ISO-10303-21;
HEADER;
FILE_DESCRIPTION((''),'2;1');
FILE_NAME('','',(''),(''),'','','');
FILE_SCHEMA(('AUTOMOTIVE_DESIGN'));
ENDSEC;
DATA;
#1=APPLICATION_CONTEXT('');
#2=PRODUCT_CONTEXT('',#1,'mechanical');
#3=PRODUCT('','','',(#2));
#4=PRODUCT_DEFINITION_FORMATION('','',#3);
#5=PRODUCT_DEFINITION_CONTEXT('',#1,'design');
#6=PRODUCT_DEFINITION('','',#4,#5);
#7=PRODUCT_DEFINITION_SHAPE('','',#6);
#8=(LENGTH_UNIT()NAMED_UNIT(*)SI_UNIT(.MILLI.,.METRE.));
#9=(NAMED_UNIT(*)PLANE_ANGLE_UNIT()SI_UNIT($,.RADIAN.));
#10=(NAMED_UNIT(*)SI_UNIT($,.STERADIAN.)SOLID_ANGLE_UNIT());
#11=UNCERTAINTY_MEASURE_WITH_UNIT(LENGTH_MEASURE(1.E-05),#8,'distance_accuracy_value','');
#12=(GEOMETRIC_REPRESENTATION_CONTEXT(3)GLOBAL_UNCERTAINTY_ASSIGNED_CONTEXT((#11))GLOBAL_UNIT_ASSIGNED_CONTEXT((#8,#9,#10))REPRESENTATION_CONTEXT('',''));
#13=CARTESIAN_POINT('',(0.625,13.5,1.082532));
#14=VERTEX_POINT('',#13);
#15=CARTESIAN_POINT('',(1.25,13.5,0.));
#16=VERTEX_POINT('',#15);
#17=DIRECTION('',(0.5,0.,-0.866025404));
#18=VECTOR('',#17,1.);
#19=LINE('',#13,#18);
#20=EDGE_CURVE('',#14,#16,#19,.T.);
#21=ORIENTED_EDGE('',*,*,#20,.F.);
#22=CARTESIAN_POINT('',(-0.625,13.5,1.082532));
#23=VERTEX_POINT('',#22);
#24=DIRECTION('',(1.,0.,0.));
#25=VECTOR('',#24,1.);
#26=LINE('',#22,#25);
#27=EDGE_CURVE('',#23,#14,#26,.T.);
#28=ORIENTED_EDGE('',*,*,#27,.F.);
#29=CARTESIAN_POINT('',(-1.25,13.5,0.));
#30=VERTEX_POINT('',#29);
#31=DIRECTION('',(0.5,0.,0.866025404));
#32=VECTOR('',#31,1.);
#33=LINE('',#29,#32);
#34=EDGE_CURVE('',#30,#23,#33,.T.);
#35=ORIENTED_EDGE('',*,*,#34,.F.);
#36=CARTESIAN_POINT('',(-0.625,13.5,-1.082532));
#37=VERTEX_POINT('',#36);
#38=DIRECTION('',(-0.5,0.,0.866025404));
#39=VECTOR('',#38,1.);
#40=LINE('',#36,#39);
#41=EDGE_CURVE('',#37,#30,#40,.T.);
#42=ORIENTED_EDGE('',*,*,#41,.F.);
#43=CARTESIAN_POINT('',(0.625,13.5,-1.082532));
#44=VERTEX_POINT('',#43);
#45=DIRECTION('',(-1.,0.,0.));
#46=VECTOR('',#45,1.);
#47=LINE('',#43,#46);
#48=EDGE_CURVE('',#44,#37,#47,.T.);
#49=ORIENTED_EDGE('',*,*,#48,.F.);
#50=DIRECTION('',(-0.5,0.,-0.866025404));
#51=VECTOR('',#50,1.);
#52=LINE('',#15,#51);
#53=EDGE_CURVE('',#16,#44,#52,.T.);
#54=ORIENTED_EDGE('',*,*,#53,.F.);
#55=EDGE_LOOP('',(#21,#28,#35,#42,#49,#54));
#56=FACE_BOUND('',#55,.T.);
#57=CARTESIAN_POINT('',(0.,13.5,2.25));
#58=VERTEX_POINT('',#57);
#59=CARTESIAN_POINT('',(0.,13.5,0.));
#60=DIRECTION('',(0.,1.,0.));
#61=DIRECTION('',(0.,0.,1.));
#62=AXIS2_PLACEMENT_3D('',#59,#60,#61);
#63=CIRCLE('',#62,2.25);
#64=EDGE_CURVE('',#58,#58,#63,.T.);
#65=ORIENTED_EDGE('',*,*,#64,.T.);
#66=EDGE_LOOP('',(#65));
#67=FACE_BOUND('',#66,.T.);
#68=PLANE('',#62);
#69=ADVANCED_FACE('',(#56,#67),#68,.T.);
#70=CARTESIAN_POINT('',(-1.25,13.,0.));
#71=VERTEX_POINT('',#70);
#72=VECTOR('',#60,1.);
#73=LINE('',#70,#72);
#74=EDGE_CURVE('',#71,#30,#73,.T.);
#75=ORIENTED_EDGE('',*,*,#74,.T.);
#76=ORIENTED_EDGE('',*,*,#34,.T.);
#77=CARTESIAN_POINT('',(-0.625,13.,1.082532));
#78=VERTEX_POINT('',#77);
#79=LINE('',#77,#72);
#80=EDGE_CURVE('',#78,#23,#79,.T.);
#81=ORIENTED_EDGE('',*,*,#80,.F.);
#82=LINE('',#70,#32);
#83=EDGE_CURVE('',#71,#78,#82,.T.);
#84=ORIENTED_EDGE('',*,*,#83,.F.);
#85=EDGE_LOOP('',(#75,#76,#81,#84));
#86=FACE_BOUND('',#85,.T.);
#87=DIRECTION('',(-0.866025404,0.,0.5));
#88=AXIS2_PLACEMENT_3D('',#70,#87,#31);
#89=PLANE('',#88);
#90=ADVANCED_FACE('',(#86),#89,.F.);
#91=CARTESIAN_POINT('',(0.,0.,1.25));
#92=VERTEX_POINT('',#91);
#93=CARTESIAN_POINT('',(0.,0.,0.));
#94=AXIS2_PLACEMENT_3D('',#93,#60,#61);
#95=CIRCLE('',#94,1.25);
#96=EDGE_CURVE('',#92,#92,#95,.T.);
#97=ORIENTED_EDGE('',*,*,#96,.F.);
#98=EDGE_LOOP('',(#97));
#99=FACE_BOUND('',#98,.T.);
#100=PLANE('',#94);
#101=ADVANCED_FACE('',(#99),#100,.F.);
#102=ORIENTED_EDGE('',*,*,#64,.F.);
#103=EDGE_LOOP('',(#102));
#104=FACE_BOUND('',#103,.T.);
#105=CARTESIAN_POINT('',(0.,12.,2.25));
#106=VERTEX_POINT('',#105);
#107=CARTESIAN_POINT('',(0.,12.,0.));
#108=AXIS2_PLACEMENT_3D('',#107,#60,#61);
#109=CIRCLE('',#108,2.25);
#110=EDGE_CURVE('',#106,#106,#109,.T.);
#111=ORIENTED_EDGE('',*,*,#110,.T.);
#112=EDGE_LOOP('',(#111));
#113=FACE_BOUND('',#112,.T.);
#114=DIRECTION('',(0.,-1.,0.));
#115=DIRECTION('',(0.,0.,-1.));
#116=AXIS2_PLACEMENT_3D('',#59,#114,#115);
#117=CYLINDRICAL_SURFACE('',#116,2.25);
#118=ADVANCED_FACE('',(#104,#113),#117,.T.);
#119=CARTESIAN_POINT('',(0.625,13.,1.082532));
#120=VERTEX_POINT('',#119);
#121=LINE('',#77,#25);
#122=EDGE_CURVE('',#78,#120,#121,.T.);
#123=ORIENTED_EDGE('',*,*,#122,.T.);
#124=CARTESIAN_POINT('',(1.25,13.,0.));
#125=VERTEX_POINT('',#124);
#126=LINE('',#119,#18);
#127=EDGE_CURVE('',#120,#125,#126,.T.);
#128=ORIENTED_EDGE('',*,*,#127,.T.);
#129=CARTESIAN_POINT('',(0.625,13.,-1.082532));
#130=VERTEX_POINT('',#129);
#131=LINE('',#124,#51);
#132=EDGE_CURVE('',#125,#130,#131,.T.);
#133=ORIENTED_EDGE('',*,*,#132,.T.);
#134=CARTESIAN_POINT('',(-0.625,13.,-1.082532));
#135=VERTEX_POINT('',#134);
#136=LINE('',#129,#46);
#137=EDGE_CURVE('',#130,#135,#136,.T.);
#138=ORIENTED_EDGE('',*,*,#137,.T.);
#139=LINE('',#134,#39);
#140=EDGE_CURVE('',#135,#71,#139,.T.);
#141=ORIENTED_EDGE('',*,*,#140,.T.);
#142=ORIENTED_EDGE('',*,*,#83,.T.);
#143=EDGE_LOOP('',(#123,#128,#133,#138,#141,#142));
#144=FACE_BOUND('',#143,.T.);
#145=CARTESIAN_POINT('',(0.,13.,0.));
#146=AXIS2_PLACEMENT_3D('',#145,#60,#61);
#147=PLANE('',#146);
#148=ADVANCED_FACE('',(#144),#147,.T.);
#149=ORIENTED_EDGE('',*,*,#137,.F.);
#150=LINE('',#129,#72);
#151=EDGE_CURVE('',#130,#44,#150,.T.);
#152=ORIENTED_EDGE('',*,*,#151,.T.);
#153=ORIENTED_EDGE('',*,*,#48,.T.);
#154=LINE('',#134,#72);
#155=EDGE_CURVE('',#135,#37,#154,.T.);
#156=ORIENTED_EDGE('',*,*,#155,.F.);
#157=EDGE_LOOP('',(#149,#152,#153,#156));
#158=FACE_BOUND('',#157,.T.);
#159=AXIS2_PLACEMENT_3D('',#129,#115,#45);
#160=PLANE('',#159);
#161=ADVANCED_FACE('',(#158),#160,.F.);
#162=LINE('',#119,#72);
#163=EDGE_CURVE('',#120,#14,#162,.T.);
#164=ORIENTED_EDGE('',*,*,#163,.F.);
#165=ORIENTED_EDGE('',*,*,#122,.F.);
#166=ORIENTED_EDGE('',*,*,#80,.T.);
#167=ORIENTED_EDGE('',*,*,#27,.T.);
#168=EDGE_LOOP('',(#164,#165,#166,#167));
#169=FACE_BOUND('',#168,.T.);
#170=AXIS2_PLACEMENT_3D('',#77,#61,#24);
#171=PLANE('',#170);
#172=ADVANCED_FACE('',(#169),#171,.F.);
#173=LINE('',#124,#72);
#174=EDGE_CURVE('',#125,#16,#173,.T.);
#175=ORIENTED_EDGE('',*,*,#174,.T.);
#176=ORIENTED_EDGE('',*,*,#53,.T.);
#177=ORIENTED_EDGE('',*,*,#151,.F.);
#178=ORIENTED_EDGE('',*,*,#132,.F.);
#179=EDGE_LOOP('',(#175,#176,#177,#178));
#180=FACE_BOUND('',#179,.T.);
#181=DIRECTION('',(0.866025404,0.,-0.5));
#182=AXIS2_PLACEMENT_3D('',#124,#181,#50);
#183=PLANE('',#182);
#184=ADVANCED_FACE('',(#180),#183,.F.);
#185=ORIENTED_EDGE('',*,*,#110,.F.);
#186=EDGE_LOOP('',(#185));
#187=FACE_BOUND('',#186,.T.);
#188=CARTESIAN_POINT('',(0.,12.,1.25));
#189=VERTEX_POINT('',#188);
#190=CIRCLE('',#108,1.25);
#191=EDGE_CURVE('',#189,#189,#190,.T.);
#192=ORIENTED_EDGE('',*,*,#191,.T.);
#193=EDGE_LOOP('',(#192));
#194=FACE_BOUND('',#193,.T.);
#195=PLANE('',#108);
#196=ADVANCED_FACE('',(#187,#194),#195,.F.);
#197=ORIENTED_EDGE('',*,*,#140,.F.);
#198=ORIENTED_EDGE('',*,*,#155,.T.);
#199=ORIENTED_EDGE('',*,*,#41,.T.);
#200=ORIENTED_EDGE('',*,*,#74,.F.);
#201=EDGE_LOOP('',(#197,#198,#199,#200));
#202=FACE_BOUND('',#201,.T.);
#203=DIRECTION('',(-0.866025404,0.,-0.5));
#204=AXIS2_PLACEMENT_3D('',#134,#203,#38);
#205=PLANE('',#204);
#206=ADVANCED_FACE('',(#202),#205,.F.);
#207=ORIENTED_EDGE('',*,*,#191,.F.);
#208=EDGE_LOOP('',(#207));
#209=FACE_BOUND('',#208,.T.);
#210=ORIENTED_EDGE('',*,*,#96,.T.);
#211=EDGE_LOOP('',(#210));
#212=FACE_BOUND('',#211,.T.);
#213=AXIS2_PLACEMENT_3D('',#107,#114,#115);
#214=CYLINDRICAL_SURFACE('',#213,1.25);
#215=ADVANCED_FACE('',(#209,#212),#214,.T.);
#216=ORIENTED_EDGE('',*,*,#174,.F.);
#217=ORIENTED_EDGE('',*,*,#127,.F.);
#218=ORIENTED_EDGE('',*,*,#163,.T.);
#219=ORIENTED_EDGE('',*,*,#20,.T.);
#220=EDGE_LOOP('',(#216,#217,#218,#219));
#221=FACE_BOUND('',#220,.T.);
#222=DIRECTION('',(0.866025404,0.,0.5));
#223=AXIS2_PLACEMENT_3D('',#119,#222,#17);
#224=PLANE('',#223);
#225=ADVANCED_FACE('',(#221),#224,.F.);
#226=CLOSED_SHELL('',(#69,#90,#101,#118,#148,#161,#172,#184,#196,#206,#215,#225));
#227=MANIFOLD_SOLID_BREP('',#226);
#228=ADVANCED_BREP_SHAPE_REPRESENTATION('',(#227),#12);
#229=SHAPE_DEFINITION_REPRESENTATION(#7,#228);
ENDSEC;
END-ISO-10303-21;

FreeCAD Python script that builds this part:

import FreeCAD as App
import Part
import Sketcher

V = App.Vector
Q = App.Units.Quantity


def add_polygon(sketch, points):
    """Adds a closed chain of lines whose ends are joined by coincident constraints."""
    first, n = sketch.GeometryCount, len(points)
    for a, b in zip(points, points[1:] + points[:1]):
        sketch.addGeometry(Part.LineSegment(App.Vector(*a, 0), App.Vector(*b, 0)), False)
    for i in range(n):
        sketch.addConstraint(Sketcher.Constraint("Coincident", first + i, 2, first + (i + 1) % n, 1))

doc = App.newDocument("Part")
body = doc.addObject("PartDesign::Body", "Body")

# Sketch on XZ plane
sketch1 = body.newObject("Sketcher::SketchObject", "Sketch")
sketch1.AttachmentSupport = (doc.getObject("XZ_Plane"), [""])
sketch1.MapMode = "FlatFace"
sketch1.addGeometry(Part.Circle(V(0, 0, 0), V(0, 0, 1), 1.2), False)
sketch1.addConstraint([
    Sketcher.Constraint("Coincident", 0, 3, -1, 1),
    Sketcher.Constraint("Diameter", 0, Q("2.5 mm")),
])
pad1 = body.newObject("PartDesign::Pad", "Pad")
pad1.Profile = sketch1
pad1.Length = 12
pad1.Reversed = True

# Sketch on XZ plane
sketch2 = body.newObject("Sketcher::SketchObject", "Sketch001")
sketch2.AttachmentSupport = (doc.getObject("XZ_Plane"), [""])
sketch2.MapMode = "FlatFace"
sketch2.AttachmentOffset = App.Placement(V(0, 0, -12), App.Rotation())
sketch2.addGeometry(Part.Circle(V(0, 0, 0), V(0, 0, 1), 2.2), False)
sketch2.addConstraint([
    Sketcher.Constraint("Coincident", 0, 3, -1, 1),
    Sketcher.Constraint("Diameter", 0, Q("4.5 mm")),
])
pad2 = body.newObject("PartDesign::Pad", "Pad001")
pad2.Profile = sketch2
pad2.Length = 1.5
pad2.Reversed = True

# Sketch on XZ plane
sketch3 = body.newObject("Sketcher::SketchObject", "Sketch002")
sketch3.AttachmentSupport = (doc.getObject("XZ_Plane"), [""])
sketch3.MapMode = "FlatFace"
sketch3.AttachmentOffset = App.Placement(V(0, 0, -13.5), App.Rotation())
add_polygon(sketch3, [(1.2, 0), (0.6, -1.1), (-0.6, -1.1), (-1.2, 0), (-0.6, 1.1), (0.6, 1.1)])  # lines 0-5
sketch3.addConstraint([
    Sketcher.Constraint("Horizontal", 1),
    Sketcher.Constraint("Horizontal", 4),
    Sketcher.Constraint("Symmetric", 0, 2, 3, 2, -1, 1),
    Sketcher.Constraint("Symmetric", 2, 2, 5, 2, -1, 1),
    Sketcher.Constraint("PointOnObject", 2, 2, -1),
    Sketcher.Constraint("Parallel", 2, 5),
    Sketcher.Constraint("Vertical", 1, 2, 3, 2),
    Sketcher.Constraint("Angle", 0, Q("-120 deg")),
    Sketcher.Constraint("DistanceX", 1, 2, 1, 1, Q("1.25 mm")),
    Sketcher.Constraint("DistanceX", 2, 2, 5, 2, Q("2.5 mm")),
])
pocket1 = body.newObject("PartDesign::Pocket", "Pocket")
pocket1.Profile = sketch3
pocket1.Length = 0.5
pocket1.Reversed = True

doc.recompute()
